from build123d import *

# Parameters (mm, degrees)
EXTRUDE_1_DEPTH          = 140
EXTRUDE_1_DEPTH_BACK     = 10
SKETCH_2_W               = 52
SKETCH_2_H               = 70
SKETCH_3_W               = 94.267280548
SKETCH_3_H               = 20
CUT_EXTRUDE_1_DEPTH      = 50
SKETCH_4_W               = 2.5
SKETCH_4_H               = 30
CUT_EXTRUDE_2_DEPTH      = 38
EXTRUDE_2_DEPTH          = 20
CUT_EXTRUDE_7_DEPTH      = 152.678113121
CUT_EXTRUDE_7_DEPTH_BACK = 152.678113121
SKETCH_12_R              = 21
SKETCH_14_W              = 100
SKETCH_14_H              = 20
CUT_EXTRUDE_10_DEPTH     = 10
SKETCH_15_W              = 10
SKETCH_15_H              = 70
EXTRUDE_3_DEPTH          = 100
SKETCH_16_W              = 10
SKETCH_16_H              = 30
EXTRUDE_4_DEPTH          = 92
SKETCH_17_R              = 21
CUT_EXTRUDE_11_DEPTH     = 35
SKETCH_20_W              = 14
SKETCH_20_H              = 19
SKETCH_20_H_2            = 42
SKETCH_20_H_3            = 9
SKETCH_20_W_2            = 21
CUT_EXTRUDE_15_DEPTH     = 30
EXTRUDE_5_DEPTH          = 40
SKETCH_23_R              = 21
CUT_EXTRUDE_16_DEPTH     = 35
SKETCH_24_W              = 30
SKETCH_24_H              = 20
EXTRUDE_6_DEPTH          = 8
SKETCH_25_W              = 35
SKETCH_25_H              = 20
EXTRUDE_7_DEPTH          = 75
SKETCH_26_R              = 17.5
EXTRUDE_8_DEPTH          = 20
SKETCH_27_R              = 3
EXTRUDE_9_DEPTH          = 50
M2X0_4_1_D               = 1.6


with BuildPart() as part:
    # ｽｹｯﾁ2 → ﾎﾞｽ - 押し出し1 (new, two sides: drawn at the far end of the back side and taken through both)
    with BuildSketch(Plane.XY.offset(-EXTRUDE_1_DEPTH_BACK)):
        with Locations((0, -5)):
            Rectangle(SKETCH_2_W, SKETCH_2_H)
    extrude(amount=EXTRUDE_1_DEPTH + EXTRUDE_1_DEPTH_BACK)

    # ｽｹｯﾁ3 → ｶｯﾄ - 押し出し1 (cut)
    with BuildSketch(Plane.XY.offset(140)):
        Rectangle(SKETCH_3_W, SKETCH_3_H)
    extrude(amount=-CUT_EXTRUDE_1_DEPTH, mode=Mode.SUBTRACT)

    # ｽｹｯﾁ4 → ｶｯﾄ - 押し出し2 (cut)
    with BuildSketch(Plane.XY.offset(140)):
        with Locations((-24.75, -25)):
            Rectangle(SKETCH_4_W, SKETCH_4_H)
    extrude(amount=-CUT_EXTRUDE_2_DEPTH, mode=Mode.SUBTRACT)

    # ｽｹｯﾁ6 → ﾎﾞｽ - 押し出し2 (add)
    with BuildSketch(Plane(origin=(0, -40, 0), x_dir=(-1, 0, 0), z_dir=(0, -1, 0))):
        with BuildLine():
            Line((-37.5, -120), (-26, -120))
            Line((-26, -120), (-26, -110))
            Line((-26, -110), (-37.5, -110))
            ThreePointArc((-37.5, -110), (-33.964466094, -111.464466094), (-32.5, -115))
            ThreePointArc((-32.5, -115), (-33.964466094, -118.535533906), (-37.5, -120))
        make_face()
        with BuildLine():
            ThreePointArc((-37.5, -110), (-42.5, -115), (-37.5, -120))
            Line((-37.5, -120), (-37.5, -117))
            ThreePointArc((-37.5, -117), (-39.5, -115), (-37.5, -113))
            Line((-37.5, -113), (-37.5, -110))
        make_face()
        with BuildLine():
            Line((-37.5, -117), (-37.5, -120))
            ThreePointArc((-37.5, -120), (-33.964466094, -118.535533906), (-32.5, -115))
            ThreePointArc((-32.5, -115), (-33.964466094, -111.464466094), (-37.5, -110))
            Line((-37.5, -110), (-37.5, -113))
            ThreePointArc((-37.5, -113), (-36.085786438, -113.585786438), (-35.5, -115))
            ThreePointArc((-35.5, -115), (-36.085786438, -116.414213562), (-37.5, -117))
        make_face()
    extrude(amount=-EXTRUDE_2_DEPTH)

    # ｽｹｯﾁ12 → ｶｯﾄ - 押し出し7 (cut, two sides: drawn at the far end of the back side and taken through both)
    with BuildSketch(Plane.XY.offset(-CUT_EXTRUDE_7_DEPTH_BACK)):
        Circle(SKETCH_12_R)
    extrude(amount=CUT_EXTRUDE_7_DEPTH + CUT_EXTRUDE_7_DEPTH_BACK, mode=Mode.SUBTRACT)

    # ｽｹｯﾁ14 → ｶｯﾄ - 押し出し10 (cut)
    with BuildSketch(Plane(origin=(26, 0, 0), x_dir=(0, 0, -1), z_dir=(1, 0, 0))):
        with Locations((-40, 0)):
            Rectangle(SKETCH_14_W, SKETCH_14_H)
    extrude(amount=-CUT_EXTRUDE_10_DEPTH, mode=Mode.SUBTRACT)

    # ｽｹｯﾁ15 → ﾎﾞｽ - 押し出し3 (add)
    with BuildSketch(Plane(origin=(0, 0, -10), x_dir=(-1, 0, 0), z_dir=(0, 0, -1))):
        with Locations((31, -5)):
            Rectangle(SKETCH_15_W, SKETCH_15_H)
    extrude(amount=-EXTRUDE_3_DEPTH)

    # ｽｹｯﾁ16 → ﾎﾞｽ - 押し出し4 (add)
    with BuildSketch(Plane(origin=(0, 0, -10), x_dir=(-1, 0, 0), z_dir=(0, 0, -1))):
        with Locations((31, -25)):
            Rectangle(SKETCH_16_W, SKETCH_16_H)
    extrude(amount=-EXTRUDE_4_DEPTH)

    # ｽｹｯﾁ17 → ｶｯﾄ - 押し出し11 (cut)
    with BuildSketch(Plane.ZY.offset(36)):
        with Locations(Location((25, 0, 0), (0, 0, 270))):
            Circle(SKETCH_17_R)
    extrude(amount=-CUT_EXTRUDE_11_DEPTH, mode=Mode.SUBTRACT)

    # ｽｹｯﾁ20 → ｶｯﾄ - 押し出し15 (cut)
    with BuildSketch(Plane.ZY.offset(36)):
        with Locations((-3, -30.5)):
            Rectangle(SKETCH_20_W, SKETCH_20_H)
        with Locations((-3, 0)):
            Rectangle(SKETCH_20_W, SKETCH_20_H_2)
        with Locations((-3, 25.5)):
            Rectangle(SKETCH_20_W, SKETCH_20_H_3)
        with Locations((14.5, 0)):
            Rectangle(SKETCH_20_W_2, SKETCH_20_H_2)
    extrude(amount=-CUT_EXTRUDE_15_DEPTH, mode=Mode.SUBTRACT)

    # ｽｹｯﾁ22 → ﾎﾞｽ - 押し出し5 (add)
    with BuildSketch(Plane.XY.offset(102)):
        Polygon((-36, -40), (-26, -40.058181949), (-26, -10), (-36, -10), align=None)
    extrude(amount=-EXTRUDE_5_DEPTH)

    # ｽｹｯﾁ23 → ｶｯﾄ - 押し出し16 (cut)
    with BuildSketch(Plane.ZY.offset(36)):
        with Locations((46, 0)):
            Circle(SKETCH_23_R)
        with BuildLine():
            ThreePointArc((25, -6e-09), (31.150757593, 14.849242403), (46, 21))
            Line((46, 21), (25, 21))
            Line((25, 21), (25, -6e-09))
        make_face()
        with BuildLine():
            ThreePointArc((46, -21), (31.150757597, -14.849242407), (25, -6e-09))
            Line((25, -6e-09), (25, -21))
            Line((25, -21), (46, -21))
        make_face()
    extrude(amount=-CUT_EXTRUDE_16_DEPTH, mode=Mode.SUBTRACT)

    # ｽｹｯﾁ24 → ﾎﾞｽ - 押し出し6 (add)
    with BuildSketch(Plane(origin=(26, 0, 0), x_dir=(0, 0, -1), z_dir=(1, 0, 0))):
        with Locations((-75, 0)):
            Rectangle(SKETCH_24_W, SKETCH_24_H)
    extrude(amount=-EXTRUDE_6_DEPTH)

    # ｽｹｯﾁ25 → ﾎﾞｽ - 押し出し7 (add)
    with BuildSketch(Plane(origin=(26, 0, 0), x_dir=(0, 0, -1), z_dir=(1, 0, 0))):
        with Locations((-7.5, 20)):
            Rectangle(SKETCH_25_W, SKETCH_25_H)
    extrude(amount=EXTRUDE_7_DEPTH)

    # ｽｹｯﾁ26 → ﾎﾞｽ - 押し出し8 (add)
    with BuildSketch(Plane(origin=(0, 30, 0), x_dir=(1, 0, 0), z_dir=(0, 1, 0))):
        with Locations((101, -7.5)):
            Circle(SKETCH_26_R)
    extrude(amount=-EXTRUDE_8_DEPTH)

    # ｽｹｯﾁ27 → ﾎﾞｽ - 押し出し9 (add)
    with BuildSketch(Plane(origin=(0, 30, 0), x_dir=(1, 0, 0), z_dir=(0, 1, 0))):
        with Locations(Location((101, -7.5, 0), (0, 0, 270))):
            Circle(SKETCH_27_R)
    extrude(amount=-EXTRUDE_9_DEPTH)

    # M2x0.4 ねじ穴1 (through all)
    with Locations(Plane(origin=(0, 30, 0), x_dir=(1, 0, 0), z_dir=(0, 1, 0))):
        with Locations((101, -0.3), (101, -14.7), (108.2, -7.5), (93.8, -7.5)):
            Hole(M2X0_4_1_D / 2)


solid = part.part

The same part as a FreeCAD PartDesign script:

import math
import FreeCAD as App
import Part
import Sketcher
Q = App.Units.Quantity

doc = App.newDocument("Part")
params = doc.addObject("Spreadsheet::Sheet", "Params")
for row, (alias, value) in enumerate([
    ("sketch1_width", "52 mm"),
    ("sketch1_height", "70 mm"),
    ("pad1_length", "140 mm"),
    ("pad1_length2", "10 mm"),
    ("sketch2_height", "20 mm"),
    ("pocket1_length", "50 mm"),
    ("sketch3_height", "30 mm"),
    ("sketch3_width", "2.5 mm"),
    ("pocket2_length", "38 mm"),
    ("sketch4_radius", "5 mm"),
    ("sketch4_radius2", "2 mm"),
    ("sketch4_width", "11.5 mm"),
    ("pad2_length", "20 mm"),
    ("sketch5_diameter", "42 mm"),
    ("sketch6_width", "20 mm"),
    ("sketch6_height", "100 mm"),
    ("pocket4_length", "10 mm"),
    ("sketch7_width", "10 mm"),
    ("sketch7_height", "70 mm"),
    ("pad3_length", "100 mm"),
    ("sketch8_width", "10 mm"),
    ("sketch8_height", "30 mm"),
    ("pad4_length", "92 mm"),
    ("sketch9_diameter", "42 mm"),
    ("pocket5_length", "35 mm"),
    ("sketch10_width", "19 mm"),
    ("sketch10_width2", "42 mm"),
    ("sketch10_width3", "9 mm"),
    ("sketch10_height", "14 mm"),
    ("sketch10_height2", "21 mm"),
    ("pocket6_length", "30 mm"),
    ("sketch11_width", "10 mm"),
    ("sketch11_height", "30 mm"),
    ("pad5_length", "40 mm"),
    ("sketch12_radius", "21 mm"),
    ("sketch12_height", "21 mm"),
    ("pocket7_length", "35 mm"),
    ("sketch13_width", "20 mm"),
    ("sketch13_height", "30 mm"),
    ("pad6_length", "8 mm"),
    ("sketch14_width", "20 mm"),
    ("sketch14_height", "35 mm"),
    ("pad7_length", "75 mm"),
    ("sketch15_diameter", "35 mm"),
    ("pad8_length", "20 mm"),
    ("sketch16_diameter", "6 mm"),
    ("pad9_length", "50 mm"),
    ("sketch17_diameter", "1.6 mm"),
    ("hole_diameter", "1.6 mm"),
], start=1):
    params.set(f"A{row}", alias)
    params.set(f"B{row}", "=" + value)
    params.setAlias(f"B{row}", alias)

body = doc.addObject("PartDesign::Body", "Body")

# Sketch on XY plane
sketch1 = body.newObject("Sketcher::SketchObject", "Sketch")
sketch1.AttachmentSupport = (doc.getObject("XY_Plane"), [""])
sketch1.MapMode = "FlatFace"
sketch1.addGeometry([
    Part.LineSegment(App.Vector(-26, 30, 0), App.Vector(-26, -40, 0)),
    Part.LineSegment(App.Vector(-26, -40, 0), App.Vector(26, -40, 0)),
    Part.LineSegment(App.Vector(26, -40, 0), App.Vector(26, 30, 0)),
    Part.LineSegment(App.Vector(26, 30, 0), App.Vector(-26, 30, 0)),
], False)
sketch1.addConstraint([
    Sketcher.Constraint("Coincident", 0, 2, 1, 1),
    Sketcher.Constraint("Coincident", 1, 2, 2, 1),
    Sketcher.Constraint("Coincident", 2, 2, 3, 1),
    Sketcher.Constraint("Coincident", 3, 2, 0, 1),
    Sketcher.Constraint("Vertical", 0),
    Sketcher.Constraint("Horizontal", 1),
    Sketcher.Constraint("Vertical", 2),
    Sketcher.Constraint("Horizontal", 3),
    Sketcher.Constraint("DistanceX", 1, 1, 1, 2, Q("52 mm")),
    Sketcher.Constraint("DistanceY", 0, 2, 0, 1, Q("70 mm")),
    Sketcher.Constraint("DistanceX", 0, 2, -1, 1, Q("26 mm")),
    Sketcher.Constraint("DistanceY", 0, 2, -1, 1, Q("40 mm")),
])
sketch1.setExpression("Constraints[8]", "Params.sketch1_width")
sketch1.setExpression("Constraints[9]", "Params.sketch1_height")
pad1 = body.newObject("PartDesign::Pad", "Pad")
pad1.Profile = sketch1
pad1.Type = "TwoLengths"
pad1.setExpression("Length", "Params.pad1_length")
pad1.setExpression("Length2", "Params.pad1_length2")

# Sketch on XY plane
sketch2 = body.newObject("Sketcher::SketchObject", "Sketch001")
sketch2.AttachmentSupport = (doc.getObject("XY_Plane"), [""])
sketch2.MapMode = "FlatFace"
sketch2.AttachmentOffset = App.Placement(App.Vector(0, 0, 140), App.Rotation())
sketch2.addGeometry([
    Part.LineSegment(App.Vector(-47.13364, 10, 0), App.Vector(-47.13364, -10, 0)),
    Part.LineSegment(App.Vector(-47.13364, -10, 0), App.Vector(47.13364, -10, 0)),
    Part.LineSegment(App.Vector(47.13364, -10, 0), App.Vector(47.13364, 10, 0)),
    Part.LineSegment(App.Vector(47.13364, 10, 0), App.Vector(-47.13364, 10, 0)),
], False)
sketch2.addConstraint([
    Sketcher.Constraint("Coincident", 0, 2, 1, 1),
    Sketcher.Constraint("Coincident", 1, 2, 2, 1),
    Sketcher.Constraint("Coincident", 2, 2, 3, 1),
    Sketcher.Constraint("Coincident", 3, 2, 0, 1),
    Sketcher.Constraint("Vertical", 0),
    Sketcher.Constraint("Horizontal", 1),
    Sketcher.Constraint("Vertical", 2),
    Sketcher.Constraint("Horizontal", 3),
    Sketcher.Constraint("Symmetric", 0, 2, 2, 2, -1, 1),
    Sketcher.Constraint("DistanceY", 0, 2, 0, 1, Q("20 mm")),
    Sketcher.Constraint("DistanceX", 1, 1, 1, 2, Q("94.267281 mm")),
])
sketch2.setExpression("Constraints[9]", "Params.sketch2_height")
pocket1 = body.newObject("PartDesign::Pocket", "Pocket")
pocket1.Profile = sketch2
pocket1.setExpression("Length", "Params.pocket1_length")

# Sketch on XY plane
sketch3 = body.newObject("Sketcher::SketchObject", "Sketch002")
sketch3.AttachmentSupport = (doc.getObject("XY_Plane"), [""])
sketch3.MapMode = "FlatFace"
sketch3.AttachmentOffset = App.Placement(App.Vector(0, 0, 140), App.Rotation())
sketch3.addGeometry([
    Part.LineSegment(App.Vector(-26, -10, 0), App.Vector(-26, -40, 0)),
    Part.LineSegment(App.Vector(-26, -40, 0), App.Vector(-23.5, -40, 0)),
    Part.LineSegment(App.Vector(-23.5, -40, 0), App.Vector(-23.5, -10, 0)),
    Part.LineSegment(App.Vector(-23.5, -10, 0), App.Vector(-26, -10, 0)),
], False)
sketch3.addConstraint([
    Sketcher.Constraint("Coincident", 0, 2, 1, 1),
    Sketcher.Constraint("Coincident", 1, 2, 2, 1),
    Sketcher.Constraint("Coincident", 2, 2, 3, 1),
    Sketcher.Constraint("Coincident", 3, 2, 0, 1),
    Sketcher.Constraint("Vertical", 0),
    Sketcher.Constraint("Horizontal", 1),
    Sketcher.Constraint("Vertical", 2),
    Sketcher.Constraint("Horizontal", 3),
    Sketcher.Constraint("DistanceY", 0, 2, 0, 1, Q("30 mm")),
    Sketcher.Constraint("DistanceX", 1, 1, 1, 2, Q("2.5 mm")),
    Sketcher.Constraint("DistanceX", 0, 2, -1, 1, Q("26 mm")),
    Sketcher.Constraint("DistanceY", 0, 2, -1, 1, Q("40 mm")),
])
sketch3.setExpression("Constraints[8]", "Params.sketch3_height")
sketch3.setExpression("Constraints[9]", "Params.sketch3_width")
pocket2 = body.newObject("PartDesign::Pocket", "Pocket001")
pocket2.Profile = sketch3
pocket2.setExpression("Length", "Params.pocket2_length")

# Sketch on XZ plane
sketch4 = body.newObject("Sketcher::SketchObject", "Sketch003")
sketch4.AttachmentSupport = (doc.getObject("XZ_Plane"), [""])
sketch4.MapMode = "FlatFace"
sketch4.AttachmentOffset = App.Placement(App.Vector(0, 0, 40), App.Rotation())
sketch4.addGeometry([
    Part.ArcOfCircle(Part.Circle(App.Vector(37.5, 115, 0), App.Vector(0, 0, 1), 5), math.radians(-90), math.radians(90)),  # 0
    Part.LineSegment(App.Vector(37.5, 120, 0), App.Vector(26, 120, 0)),  # 1
    Part.LineSegment(App.Vector(26, 120, 0), App.Vector(26, 110, 0)),  # 2
    Part.LineSegment(App.Vector(26, 110, 0), App.Vector(37.5, 110, 0)),  # 3
    Part.ArcOfCircle(Part.Circle(App.Vector(37.5, 115, 0), App.Vector(0, 0, 1), 2), math.radians(-180), math.radians(-90)),  # 4
    Part.ArcOfCircle(Part.Circle(App.Vector(37.5, 115, 0), App.Vector(0, 0, 1), 2), math.radians(90), math.radians(180)),  # 5
    Part.ArcOfCircle(Part.Circle(App.Vector(37.5, 115, 0), App.Vector(0, 0, 1), 2), math.radians(-90), math.radians(90)),  # 6
], False)
sketch4.addConstraint([
    Sketcher.Constraint("Tangent", 0, 2, 1, 1),
    Sketcher.Constraint("Coincident", 1, 2, 2, 1),
    Sketcher.Constraint("Coincident", 2, 2, 3, 1),
    Sketcher.Constraint("Tangent", 3, 2, 0, 1),
    Sketcher.Constraint("Tangent", 4, 1, 5, 2),
    Sketcher.Constraint("Tangent", 5, 1, 6, 2),
    Sketcher.Constraint("Tangent", 6, 1, 4, 2),
    Sketcher.Constraint("Horizontal", 1),
    Sketcher.Constraint("Vertical", 2),
    Sketcher.Constraint("Horizontal", 3),
    Sketcher.Constraint("Coincident", 4, 3, 0, 3),
    Sketcher.Constraint("Horizontal", 6, 3, 4, 1),
    Sketcher.Constraint("Vertical", 3, 2, 5, 1),
    Sketcher.Constraint("Vertical", 5, 1, 6, 1),
    Sketcher.Constraint("Radius", 0, Q("5 mm")),
    Sketcher.Constraint("Radius", 4, Q("2 mm")),
    Sketcher.Constraint("DistanceX", 1, 2, 1, 1, Q("11.5 mm")),
    Sketcher.Constraint("DistanceY", -1, 1, 0, 3, Q("115 mm")),
    Sketcher.Constraint("DistanceX", -1, 1, 1, 2, Q("26 mm")),
])
sketch4.setExpression("Constraints[14]", "Params.sketch4_radius")
sketch4.setExpression("Constraints[15]", "Params.sketch4_radius2")
sketch4.setExpression("Constraints[16]", "Params.sketch4_width")
pad2 = body.newObject("PartDesign::Pad", "Pad001")
pad2.Profile = sketch4
pad2.setExpression("Length", "Params.pad2_length")
pad2.Reversed = True

# Sketch on XY plane
sketch5 = body.newObject("Sketcher::SketchObject", "Sketch004")
sketch5.AttachmentSupport = (doc.getObject("XY_Plane"), [""])
sketch5.MapMode = "FlatFace"
sketch5.addGeometry(Part.Circle(App.Vector(0, 0, 0), App.Vector(0, 0, 1), 21), False)
sketch5.addConstraint([
    Sketcher.Constraint("Coincident", 0, 3, -1, 1),
    Sketcher.Constraint("Diameter", 0, Q("42 mm")),
])
sketch5.setExpression("Constraints[1]", "Params.sketch5_diameter")
pocket3 = body.newObject("PartDesign::Pocket", "Pocket002")
pocket3.Profile = sketch5
pocket3.Type = "ThroughAll"
pocket3.Midplane = True

# Sketch on YZ plane
sketch6 = body.newObject("Sketcher::SketchObject", "Sketch005")
sketch6.AttachmentSupport = (doc.getObject("YZ_Plane"), [""])
sketch6.MapMode = "FlatFace"
sketch6.AttachmentOffset = App.Placement(App.Vector(0, 0, 26), App.Rotation())
sketch6.addGeometry([
    Part.LineSegment(App.Vector(10, 90, 0), App.Vector(-10, 90, 0)),
    Part.LineSegment(App.Vector(-10, 90, 0), App.Vector(-10, -10, 0)),
    Part.LineSegment(App.Vector(-10, -10, 0), App.Vector(10, -10, 0)),
    Part.LineSegment(App.Vector(10, -10, 0), App.Vector(10, 90, 0)),
], False)
sketch6.addConstraint([
    Sketcher.Constraint("Coincident", 0, 2, 1, 1),
    Sketcher.Constraint("Coincident", 1, 2, 2, 1),
    Sketcher.Constraint("Coincident", 2, 2, 3, 1),
    Sketcher.Constraint("Coincident", 3, 2, 0, 1),
    Sketcher.Constraint("Horizontal", 0),
    Sketcher.Constraint("Vertical", 1),
    Sketcher.Constraint("Horizontal", 2),
    Sketcher.Constraint("Vertical", 3),
    Sketcher.Constraint("DistanceX", 0, 2, 0, 1, Q("20 mm")),
    Sketcher.Constraint("DistanceY", 1, 2, 1, 1, Q("100 mm")),
    Sketcher.Constraint("DistanceX", 0, 2, -1, 1, Q("10 mm")),
    Sketcher.Constraint("DistanceY", -1, 1, 0, 2, Q("90 mm")),
])
sketch6.setExpression("Constraints[8]", "Params.sketch6_width")
sketch6.setExpression("Constraints[9]", "Params.sketch6_height")
pocket4 = body.newObject("PartDesign::Pocket", "Pocket003")
pocket4.Profile = sketch6
pocket4.setExpression("Length", "Params.pocket4_length")

# Sketch on XY plane
sketch7 = body.newObject("Sketcher::SketchObject", "Sketch006")
sketch7.AttachmentSupport = (doc.getObject("XY_Plane"), [""])
sketch7.MapMode = "FlatFace"
sketch7.AttachmentOffset = App.Placement(App.Vector(0, 0, -10), App.Rotation())
sketch7.addGeometry([
    Part.LineSegment(App.Vector(-26, 30, 0), App.Vector(-26, -40, 0)),
    Part.LineSegment(App.Vector(-26, -40, 0), App.Vector(-36, -40, 0)),
    Part.LineSegment(App.Vector(-36, -40, 0), App.Vector(-36, 30, 0)),
    Part.LineSegment(App.Vector(-36, 30, 0), App.Vector(-26, 30, 0)),
], False)
sketch7.addConstraint([
    Sketcher.Constraint("Coincident", 0, 2, 1, 1),
    Sketcher.Constraint("Coincident", 1, 2, 2, 1),
    Sketcher.Constraint("Coincident", 2, 2, 3, 1),
    Sketcher.Constraint("Coincident", 3, 2, 0, 1),
    Sketcher.Constraint("Vertical", 0),
    Sketcher.Constraint("Horizontal", 1),
    Sketcher.Constraint("Vertical", 2),
    Sketcher.Constraint("Horizontal", 3),
    Sketcher.Constraint("DistanceX", 1, 2, 1, 1, Q("10 mm")),
    Sketcher.Constraint("DistanceY", 0, 2, 0, 1, Q("70 mm")),
    Sketcher.Constraint("DistanceX", 0, 2, -1, 1, Q("26 mm")),
    Sketcher.Constraint("DistanceY", 0, 2, -1, 1, Q("40 mm")),
])
sketch7.setExpression("Constraints[8]", "Params.sketch7_width")
sketch7.setExpression("Constraints[9]", "Params.sketch7_height")
pad3 = body.newObject("PartDesign::Pad", "Pad002")
pad3.Profile = sketch7
pad3.setExpression("Length", "Params.pad3_length")

# Sketch on XY plane
sketch8 = body.newObject("Sketcher::SketchObject", "Sketch007")
sketch8.AttachmentSupport = (doc.getObject("XY_Plane"), [""])
sketch8.MapMode = "FlatFace"
sketch8.AttachmentOffset = App.Placement(App.Vector(0, 0, -10), App.Rotation())
sketch8.addGeometry([
    Part.LineSegment(App.Vector(-26, -10, 0), App.Vector(-26, -40, 0)),
    Part.LineSegment(App.Vector(-26, -40, 0), App.Vector(-36, -40, 0)),
    Part.LineSegment(App.Vector(-36, -40, 0), App.Vector(-36, -10, 0)),
    Part.LineSegment(App.Vector(-36, -10, 0), App.Vector(-26, -10, 0)),
], False)
sketch8.addConstraint([
    Sketcher.Constraint("Coincident", 0, 2, 1, 1),
    Sketcher.Constraint("Coincident", 1, 2, 2, 1),
    Sketcher.Constraint("Coincident", 2, 2, 3, 1),
    Sketcher.Constraint("Coincident", 3, 2, 0, 1),
    Sketcher.Constraint("Vertical", 0),
    Sketcher.Constraint("Horizontal", 1),
    Sketcher.Constraint("Vertical", 2),
    Sketcher.Constraint("Horizontal", 3),
    Sketcher.Constraint("DistanceX", 1, 2, 1, 1, Q("10 mm")),
    Sketcher.Constraint("DistanceY", 0, 2, 0, 1, Q("30 mm")),
    Sketcher.Constraint("DistanceX", 0, 2, -1, 1, Q("26 mm")),
    Sketcher.Constraint("DistanceY", 0, 2, -1, 1, Q("40 mm")),
])
sketch8.setExpression("Constraints[8]", "Params.sketch8_width")
sketch8.setExpression("Constraints[9]", "Params.sketch8_height")
pad4 = body.newObject("PartDesign::Pad", "Pad003")
pad4.Profile = sketch8
pad4.setExpression("Length", "Params.pad4_length")

# Sketch on YZ plane
sketch9 = body.newObject("Sketcher::SketchObject", "Sketch008")
sketch9.AttachmentSupport = (doc.getObject("YZ_Plane"), [""])
sketch9.MapMode = "FlatFace"
sketch9.AttachmentOffset = App.Placement(App.Vector(0, 0, -36), App.Rotation())
sketch9.addGeometry(Part.Circle(App.Vector(0, 25, 0), App.Vector(0, 0, 1), 21), False)
sketch9.addConstraint([
    Sketcher.Constraint("PointOnObject", 0, 3, -2),
    Sketcher.Constraint("Diameter", 0, Q("42 mm")),
    Sketcher.Constraint("DistanceY", -1, 1, 0, 3, Q("25 mm")),
])
sketch9.setExpression("Constraints[1]", "Params.sketch9_diameter")
pocket5 = body.newObject("PartDesign::Pocket", "Pocket004")
pocket5.Profile = sketch9
pocket5.setExpression("Length", "Params.pocket5_length")
pocket5.Reversed = True

# Sketch on YZ plane
sketch10 = body.newObject("Sketcher::SketchObject", "Sketch009")
sketch10.AttachmentSupport = (doc.getObject("YZ_Plane"), [""])
sketch10.MapMode = "FlatFace"
sketch10.AttachmentOffset = App.Placement(App.Vector(0, 0, -36), App.Rotation())
sketch10.addGeometry([
    Part.LineSegment(App.Vector(-40, -10, 0), App.Vector(-40, 4, 0)),  # 0
    Part.LineSegment(App.Vector(-40, 4, 0), App.Vector(-21, 4, 0)),  # 1
    Part.LineSegment(App.Vector(-21, 4, 0), App.Vector(-21, 25, 0)),  # 2
    Part.LineSegment(App.Vector(-21, 25, 0), App.Vector(21, 25, 0)),  # 3
    Part.LineSegment(App.Vector(21, 25, 0), App.Vector(21, 4, 0)),  # 4
    Part.LineSegment(App.Vector(21, 4, 0), App.Vector(30, 4, 0)),  # 5
    Part.LineSegment(App.Vector(30, 4, 0), App.Vector(30, -10, 0)),  # 6
    Part.LineSegment(App.Vector(30, -10, 0), App.Vector(-40, -10, 0)),  # 7
], False)
sketch10.addConstraint([
    Sketcher.Constraint("Coincident", 0, 2, 1, 1),
    Sketcher.Constraint("Coincident", 1, 2, 2, 1),
    Sketcher.Constraint("Coincident", 2, 2, 3, 1),
    Sketcher.Constraint("Coincident", 3, 2, 4, 1),
    Sketcher.Constraint("Coincident", 4, 2, 5, 1),
    Sketcher.Constraint("Coincident", 5, 2, 6, 1),
    Sketcher.Constraint("Coincident", 6, 2, 7, 1),
    Sketcher.Constraint("Coincident", 7, 2, 0, 1),
    Sketcher.Constraint("Vertical", 0),
    Sketcher.Constraint("Horizontal", 1),
    Sketcher.Constraint("Vertical", 2),
    Sketcher.Constraint("Horizontal", 3),
    Sketcher.Constraint("Vertical", 4),
    Sketcher.Constraint("Horizontal", 5),
    Sketcher.Constraint("Vertical", 6),
    Sketcher.Constraint("Horizontal", 7),
    Sketcher.Constraint("Symmetric", 1, 2, 4, 2, -2),
    Sketcher.Constraint("DistanceX", 1, 1, 1, 2, Q("19 mm")),
    Sketcher.Constraint("DistanceX", 3, 1, 3, 2, Q("42 mm")),
    Sketcher.Constraint("DistanceX", 5, 1, 5, 2, Q("9 mm")),
    Sketcher.Constraint("DistanceY", 0, 1, 0, 2, Q("14 mm")),
    Sketcher.Constraint("DistanceY", 2, 1, 2, 2, Q("21 mm")),
    Sketcher.Constraint("DistanceY", -1, 1, 0, 2, Q("4 mm")),
])
sketch10.setExpression("Constraints[17]", "Params.sketch10_width")
sketch10.setExpression("Constraints[18]", "Params.sketch10_width2")
sketch10.setExpression("Constraints[19]", "Params.sketch10_width3")
sketch10.setExpression("Constraints[20]", "Params.sketch10_height")
sketch10.setExpression("Constraints[21]", "Params.sketch10_height2")
pocket6 = body.newObject("PartDesign::Pocket", "Pocket005")
pocket6.Profile = sketch10
pocket6.setExpression("Length", "Params.pocket6_length")
pocket6.Reversed = True

# Sketch on XY plane
sketch11 = body.newObject("Sketcher::SketchObject", "Sketch010")
sketch11.AttachmentSupport = (doc.getObject("XY_Plane"), [""])
sketch11.MapMode = "FlatFace"
sketch11.AttachmentOffset = App.Placement(App.Vector(0, 0, 102), App.Rotation())
sketch11.addGeometry([
    Part.LineSegment(App.Vector(-36, -40, 0), App.Vector(-26, -40.058182, 0)),
    Part.LineSegment(App.Vector(-26, -40.058182, 0), App.Vector(-26, -10, 0)),
    Part.LineSegment(App.Vector(-26, -10, 0), App.Vector(-36, -10, 0)),
    Part.LineSegment(App.Vector(-36, -10, 0), App.Vector(-36, -40, 0)),
], False)
sketch11.addConstraint([
    Sketcher.Constraint("Coincident", 0, 2, 1, 1),
    Sketcher.Constraint("Coincident", 1, 2, 2, 1),
    Sketcher.Constraint("Coincident", 2, 2, 3, 1),
    Sketcher.Constraint("Coincident", 3, 2, 0, 1),
    Sketcher.Constraint("Vertical", 1),
    Sketcher.Constraint("Horizontal", 2),
    Sketcher.Constraint("Vertical", 3),
    Sketcher.Constraint("DistanceX", 2, 2, 2, 1, Q("10 mm")),
    Sketcher.Constraint("DistanceY", 3, 2, 3, 1, Q("30 mm")),
    Sketcher.Constraint("DistanceX", 0, 2, -1, 1, Q("26 mm")),
    Sketcher.Constraint("DistanceY", 1, 2, -1, 1, Q("10 mm")),
    Sketcher.Constraint("DistanceY", 1, 1, 1, 2, Q("30.058182 mm")),
])
sketch11.setExpression("Constraints[7]", "Params.sketch11_width")
sketch11.setExpression("Constraints[8]", "Params.sketch11_height")
pad5 = body.newObject("PartDesign::Pad", "Pad004")
pad5.Profile = sketch11
pad5.setExpression("Length", "Params.pad5_length")
pad5.Reversed = True

# Sketch on YZ plane
sketch12 = body.newObject("Sketcher::SketchObject", "Sketch011")
sketch12.AttachmentSupport = (doc.getObject("YZ_Plane"), [""])
sketch12.MapMode = "FlatFace"
sketch12.AttachmentOffset = App.Placement(App.Vector(0, 0, -36), App.Rotation())
sketch12.addGeometry([
    Part.LineSegment(App.Vector(21, 46, 0), App.Vector(21, 25, 0)),
    Part.LineSegment(App.Vector(21, 25, 0), App.Vector(-21, 25, 0)),
    Part.LineSegment(App.Vector(-21, 25, 0), App.Vector(-21, 46, 0)),
    Part.ArcOfCircle(Part.Circle(App.Vector(0, 46, 0), App.Vector(0, 0, 1), 21), math.radians(0), math.radians(180)),
], False)
sketch12.addConstraint([
    Sketcher.Constraint("Coincident", 0, 2, 1, 1),
    Sketcher.Constraint("Coincident", 1, 2, 2, 1),
    Sketcher.Constraint("Tangent", 2, 2, 3, 2),
    Sketcher.Constraint("Tangent", 3, 1, 0, 1),
    Sketcher.Constraint("Vertical", 0),
    Sketcher.Constraint("Horizontal", 1),
    Sketcher.Constraint("Vertical", 2),
    Sketcher.Constraint("PointOnObject", 3, 3, -2),
    Sketcher.Constraint("Radius", 3, Q("21 mm")),
    Sketcher.Constraint("DistanceY", 0, 2, 0, 1, Q("21 mm")),
    Sketcher.Constraint("DistanceY", -1, 1, 3, 3, Q("46 mm")),
])
sketch12.setExpression("Constraints[8]", "Params.sketch12_radius")
sketch12.setExpression("Constraints[9]", "Params.sketch12_height")
pocket7 = body.newObject("PartDesign::Pocket", "Pocket006")
pocket7.Profile = sketch12
pocket7.setExpression("Length", "Params.pocket7_length")
pocket7.Reversed = True

# Sketch on YZ plane
sketch13 = body.newObject("Sketcher::SketchObject", "Sketch012")
sketch13.AttachmentSupport = (doc.getObject("YZ_Plane"), [""])
sketch13.MapMode = "FlatFace"
sketch13.AttachmentOffset = App.Placement(App.Vector(0, 0, 26), App.Rotation())
sketch13.addGeometry([
    Part.LineSegment(App.Vector(10, 90, 0), App.Vector(-10, 90, 0)),
    Part.LineSegment(App.Vector(-10, 90, 0), App.Vector(-10, 60, 0)),
    Part.LineSegment(App.Vector(-10, 60, 0), App.Vector(10, 60, 0)),
    Part.LineSegment(App.Vector(10, 60, 0), App.Vector(10, 90, 0)),
], False)
sketch13.addConstraint([
    Sketcher.Constraint("Coincident", 0, 2, 1, 1),
    Sketcher.Constraint("Coincident", 1, 2, 2, 1),
    Sketcher.Constraint("Coincident", 2, 2, 3, 1),
    Sketcher.Constraint("Coincident", 3, 2, 0, 1),
    Sketcher.Constraint("Horizontal", 0),
    Sketcher.Constraint("Vertical", 1),
    Sketcher.Constraint("Horizontal", 2),
    Sketcher.Constraint("Vertical", 3),
    Sketcher.Constraint("DistanceX", 0, 2, 0, 1, Q("20 mm")),
    Sketcher.Constraint("DistanceY", 1, 2, 1, 1, Q("30 mm")),
    Sketcher.Constraint("DistanceX", 0, 2, -1, 1, Q("10 mm")),
    Sketcher.Constraint("DistanceY", -1, 1, 0, 2, Q("90 mm")),
])
sketch13.setExpression("Constraints[8]", "Params.sketch13_width")
sketch13.setExpression("Constraints[9]", "Params.sketch13_height")
pad6 = body.newObject("PartDesign::Pad", "Pad005")
pad6.Profile = sketch13
pad6.setExpression("Length", "Params.pad6_length")
pad6.Reversed = True

# Sketch on YZ plane
sketch14 = body.newObject("Sketcher::SketchObject", "Sketch013")
sketch14.AttachmentSupport = (doc.getObject("YZ_Plane"), [""])
sketch14.MapMode = "FlatFace"
sketch14.AttachmentOffset = App.Placement(App.Vector(0, 0, 26), App.Rotation())
sketch14.addGeometry([
    Part.LineSegment(App.Vector(30, 25, 0), App.Vector(10, 25, 0)),
    Part.LineSegment(App.Vector(10, 25, 0), App.Vector(10, -10, 0)),
    Part.LineSegment(App.Vector(10, -10, 0), App.Vector(30, -10, 0)),
    Part.LineSegment(App.Vector(30, -10, 0), App.Vector(30, 25, 0)),
], False)
sketch14.addConstraint([
    Sketcher.Constraint("Coincident", 0, 2, 1, 1),
    Sketcher.Constraint("Coincident", 1, 2, 2, 1),
    Sketcher.Constraint("Coincident", 2, 2, 3, 1),
    Sketcher.Constraint("Coincident", 3, 2, 0, 1),
    Sketcher.Constraint("Horizontal", 0),
    Sketcher.Constraint("Vertical", 1),
    Sketcher.Constraint("Horizontal", 2),
    Sketcher.Constraint("Vertical", 3),
    Sketcher.Constraint("DistanceX", 0, 2, 0, 1, Q("20 mm")),
    Sketcher.Constraint("DistanceY", 1, 2, 1, 1, Q("35 mm")),
    Sketcher.Constraint("DistanceX", -1, 1, 0, 2, Q("10 mm")),
    Sketcher.Constraint("DistanceY", -1, 1, 0, 2, Q("25 mm")),
])
sketch14.setExpression("Constraints[8]", "Params.sketch14_width")
sketch14.setExpression("Constraints[9]", "Params.sketch14_height")
pad7 = body.newObject("PartDesign::Pad", "Pad006")
pad7.Profile = sketch14
pad7.setExpression("Length", "Params.pad7_length")

# Sketch on XZ plane
sketch15 = body.newObject("Sketcher::SketchObject", "Sketch014")
sketch15.AttachmentSupport = (doc.getObject("XZ_Plane"), [""])
sketch15.MapMode = "FlatFace"
sketch15.AttachmentOffset = App.Placement(App.Vector(0, 0, -30), App.Rotation())
sketch15.addGeometry(Part.Circle(App.Vector(101, 7.5, 0), App.Vector(0, 0, 1), 17.5), False)
sketch15.addConstraint([
    Sketcher.Constraint("Diameter", 0, Q("35 mm")),
    Sketcher.Constraint("DistanceX", -1, 1, 0, 3, Q("101 mm")),
    Sketcher.Constraint("DistanceY", -1, 1, 0, 3, Q("7.5 mm")),
])
sketch15.setExpression("Constraints[0]", "Params.sketch15_diameter")
pad8 = body.newObject("PartDesign::Pad", "Pad007")
pad8.Profile = sketch15
pad8.setExpression("Length", "Params.pad8_length")

# Sketch on XZ plane
sketch16 = body.newObject("Sketcher::SketchObject", "Sketch015")
sketch16.AttachmentSupport = (doc.getObject("XZ_Plane"), [""])
sketch16.MapMode = "FlatFace"
sketch16.AttachmentOffset = App.Placement(App.Vector(0, 0, -30), App.Rotation())
sketch16.addGeometry(Part.Circle(App.Vector(101, 7.5, 0), App.Vector(0, 0, 1), 3), False)
sketch16.addConstraint([
    Sketcher.Constraint("Diameter", 0, Q("6 mm")),
    Sketcher.Constraint("DistanceX", -1, 1, 0, 3, Q("101 mm")),
    Sketcher.Constraint("DistanceY", -1, 1, 0, 3, Q("7.5 mm")),
])
sketch16.setExpression("Constraints[0]", "Params.sketch16_diameter")
pad9 = body.newObject("PartDesign::Pad", "Pad008")
pad9.Profile = sketch16
pad9.setExpression("Length", "Params.pad9_length")

# Sketch on XZ plane
sketch17 = body.newObject("Sketcher::SketchObject", "Sketch016")
sketch17.AttachmentSupport = (doc.getObject("XZ_Plane"), [""])
sketch17.MapMode = "FlatFace"
sketch17.AttachmentOffset = App.Placement(App.Vector(0, 0, -30), App.Rotation())
sketch17.addGeometry([
    Part.Circle(App.Vector(101, 0.3, 0), App.Vector(0, 0, 1), 0.8),
    Part.Circle(App.Vector(101, 14.7, 0), App.Vector(0, 0, 1), 0.8),
    Part.Circle(App.Vector(108.2, 7.5, 0), App.Vector(0, 0, 1), 0.8),
    Part.Circle(App.Vector(93.8, 7.5, 0), App.Vector(0, 0, 1), 0.8),
], False)
sketch17.addConstraint([
    Sketcher.Constraint("Equal", 0, 1),
    Sketcher.Constraint("Equal", 1, 2),
    Sketcher.Constraint("Equal", 2, 3),
    Sketcher.Constraint("Horizontal", 2, 3, 3, 3),
    Sketcher.Constraint("Vertical", 0, 3, 1, 3),
    Sketcher.Constraint("Diameter", 0, Q("1.6 mm")),
    Sketcher.Constraint("DistanceX", -1, 1, 0, 3, Q("101 mm")),
    Sketcher.Constraint("DistanceY", -1, 1, 0, 3, Q("0.3 mm")),
    Sketcher.Constraint("DistanceY", -1, 1, 1, 3, Q("14.7 mm")),
    Sketcher.Constraint("DistanceX", -1, 1, 2, 3, Q("108.2 mm")),
    Sketcher.Constraint("DistanceY", -1, 1, 2, 3, Q("7.5 mm")),
    Sketcher.Constraint("DistanceX", -1, 1, 3, 3, Q("93.8 mm")),
])
sketch17.setExpression("Constraints[5]", "Params.sketch17_diameter")
doc.recompute()
hole = body.newObject("PartDesign::Hole", "Hole")
hole.Profile = sketch17
hole.ThreadType = "None"
hole.setExpression("Diameter", "Params.hole_diameter")
hole.DepthType = "ThroughAll"
hole.Reversed = True

doc.recompute()
